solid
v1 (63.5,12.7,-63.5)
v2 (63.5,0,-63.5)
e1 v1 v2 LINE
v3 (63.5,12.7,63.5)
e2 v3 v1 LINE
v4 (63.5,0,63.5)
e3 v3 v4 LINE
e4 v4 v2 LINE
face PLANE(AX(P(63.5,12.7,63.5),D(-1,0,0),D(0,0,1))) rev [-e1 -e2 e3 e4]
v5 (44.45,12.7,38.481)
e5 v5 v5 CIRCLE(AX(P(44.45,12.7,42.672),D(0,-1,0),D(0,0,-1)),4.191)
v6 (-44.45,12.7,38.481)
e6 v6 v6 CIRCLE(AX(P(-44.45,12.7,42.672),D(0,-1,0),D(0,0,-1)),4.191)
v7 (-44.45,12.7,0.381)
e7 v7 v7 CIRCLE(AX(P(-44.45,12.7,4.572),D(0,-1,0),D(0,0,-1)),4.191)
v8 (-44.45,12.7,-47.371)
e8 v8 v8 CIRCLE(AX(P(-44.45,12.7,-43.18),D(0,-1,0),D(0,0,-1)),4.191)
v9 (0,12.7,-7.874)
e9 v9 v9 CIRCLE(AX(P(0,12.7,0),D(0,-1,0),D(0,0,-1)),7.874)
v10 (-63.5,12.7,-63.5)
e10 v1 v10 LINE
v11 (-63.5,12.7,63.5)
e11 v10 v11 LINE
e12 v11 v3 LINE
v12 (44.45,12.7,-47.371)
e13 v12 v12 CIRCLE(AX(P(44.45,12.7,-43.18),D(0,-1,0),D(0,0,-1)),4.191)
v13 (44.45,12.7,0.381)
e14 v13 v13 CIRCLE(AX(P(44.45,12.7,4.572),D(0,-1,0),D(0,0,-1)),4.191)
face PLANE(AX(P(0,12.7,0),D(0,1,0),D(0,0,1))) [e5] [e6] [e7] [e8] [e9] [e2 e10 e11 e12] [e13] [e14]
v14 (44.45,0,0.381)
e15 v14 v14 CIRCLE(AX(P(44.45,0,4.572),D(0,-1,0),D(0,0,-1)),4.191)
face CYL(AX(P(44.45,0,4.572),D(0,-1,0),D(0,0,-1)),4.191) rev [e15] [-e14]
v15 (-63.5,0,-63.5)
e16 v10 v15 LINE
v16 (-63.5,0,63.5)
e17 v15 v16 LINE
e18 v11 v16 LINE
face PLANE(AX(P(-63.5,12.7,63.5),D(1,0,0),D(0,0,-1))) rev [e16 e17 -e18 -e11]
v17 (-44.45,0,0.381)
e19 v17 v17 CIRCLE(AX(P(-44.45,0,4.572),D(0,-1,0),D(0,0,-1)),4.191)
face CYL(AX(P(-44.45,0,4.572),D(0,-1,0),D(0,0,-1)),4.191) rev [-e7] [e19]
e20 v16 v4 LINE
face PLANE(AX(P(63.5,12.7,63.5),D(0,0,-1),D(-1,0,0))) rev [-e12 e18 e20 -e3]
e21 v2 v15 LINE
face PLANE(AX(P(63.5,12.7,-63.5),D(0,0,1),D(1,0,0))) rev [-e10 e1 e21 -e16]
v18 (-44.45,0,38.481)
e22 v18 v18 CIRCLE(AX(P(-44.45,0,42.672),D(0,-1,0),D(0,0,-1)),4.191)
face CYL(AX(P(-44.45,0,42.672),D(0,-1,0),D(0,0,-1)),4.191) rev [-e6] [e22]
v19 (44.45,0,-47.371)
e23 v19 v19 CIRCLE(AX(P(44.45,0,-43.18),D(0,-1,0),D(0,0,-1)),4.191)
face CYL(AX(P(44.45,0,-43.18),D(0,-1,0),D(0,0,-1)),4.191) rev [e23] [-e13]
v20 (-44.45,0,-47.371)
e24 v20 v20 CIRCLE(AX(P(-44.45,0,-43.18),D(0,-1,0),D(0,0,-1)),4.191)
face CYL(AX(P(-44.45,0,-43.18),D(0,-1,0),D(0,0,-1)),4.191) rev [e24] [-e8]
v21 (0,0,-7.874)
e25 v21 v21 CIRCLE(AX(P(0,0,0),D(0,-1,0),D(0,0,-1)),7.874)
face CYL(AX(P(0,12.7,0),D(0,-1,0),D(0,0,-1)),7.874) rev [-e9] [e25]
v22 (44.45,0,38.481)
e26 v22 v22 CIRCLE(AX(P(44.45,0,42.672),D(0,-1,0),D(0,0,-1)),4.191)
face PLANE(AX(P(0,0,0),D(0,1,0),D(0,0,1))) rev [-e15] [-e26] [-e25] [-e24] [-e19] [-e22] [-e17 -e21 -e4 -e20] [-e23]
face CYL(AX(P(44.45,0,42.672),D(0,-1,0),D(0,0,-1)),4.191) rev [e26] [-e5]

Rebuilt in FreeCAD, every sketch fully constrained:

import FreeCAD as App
import Part
import Sketcher
from FreeCAD import Vector
Q = App.Units.Quantity

doc = App.newDocument("Part")
body = doc.addObject("PartDesign::Body", "Body")

sketch1 = body.newObject("Sketcher::SketchObject", "Sketch")
sketch1.AttachmentSupport = (doc.getObject("XZ_Plane"), [""])
sketch1.MapMode = "FlatFace"
sketch1.addGeometry(Part.LineSegment(Vector(-64, -64, 0), Vector(-64, 64, 0)), False)
sketch1.addGeometry(Part.LineSegment(Vector(-64, 64, 0), Vector(64, 64, 0)), False)
sketch1.addGeometry(Part.LineSegment(Vector(64, 64, 0), Vector(64, -64, 0)), False)
sketch1.addGeometry(Part.LineSegment(Vector(64, -64, 0), Vector(-64, -64, 0)), False)
sketch1.addConstraint(Sketcher.Constraint("Coincident", 0, 2, 1, 1))
sketch1.addConstraint(Sketcher.Constraint("Coincident", 1, 2, 2, 1))
sketch1.addConstraint(Sketcher.Constraint("Coincident", 2, 2, 3, 1))
sketch1.addConstraint(Sketcher.Constraint("Coincident", 3, 2, 0, 1))
sketch1.addConstraint(Sketcher.Constraint("Vertical", 0))
sketch1.addConstraint(Sketcher.Constraint("Horizontal", 1))
sketch1.addConstraint(Sketcher.Constraint("Vertical", 2))
sketch1.addConstraint(Sketcher.Constraint("Horizontal", 3))
sketch1.addConstraint(Sketcher.Constraint("Symmetric", 0, 2, 2, 2, -1, 1))
sketch1.addConstraint(Sketcher.Constraint("Equal", 3, 0))
sketch1.addConstraint(Sketcher.Constraint("DistanceX", 1, 1, 1, 2, Q("5 in")))
pad1 = body.newObject("PartDesign::Pad", "Pad")
pad1.Profile = sketch1
pad1.Length = Q("0.5 in")
pad1.Reversed = True

sketch2 = body.newObject("Sketcher::SketchObject", "Sketch001")
sketch2.AttachmentSupport = (doc.getObject("XZ_Plane"), [""])
sketch2.MapMode = "FlatFace"
sketch2.addGeometry(Part.Circle(Vector(44.5, -43.2, 0), Vector(0, 0, 1), 4.2), False)
sketch2.addGeometry(Part.Circle(Vector(44.5, 4.6, 0), Vector(0, 0, 1), 4.2), False)
sketch2.addGeometry(Part.Circle(Vector(44.5, 42.7, 0), Vector(0, 0, 1), 4.2), False)
sketch2.addGeometry(Part.Circle(Vector(-44.5, -43.2, 0), Vector(0, 0, 1), 4.2), False)
sketch2.addGeometry(Part.Circle(Vector(-44.5, 4.6, 0), Vector(0, 0, 1), 4.2), False)
sketch2.addGeometry(Part.Circle(Vector(-44.5, 42.7, 0), Vector(0, 0, 1), 4.2), False)
sketch2.addConstraint(Sketcher.Constraint("Equal", 0, 1))
sketch2.addConstraint(Sketcher.Constraint("Equal", 1, 2))
sketch2.addConstraint(Sketcher.Constraint("Equal", 2, 3))
sketch2.addConstraint(Sketcher.Constraint("Equal", 3, 4))
sketch2.addConstraint(Sketcher.Constraint("Equal", 4, 5))
sketch2.addConstraint(Sketcher.Constraint("Symmetric", 0, 3, 3, 3, -2))
sketch2.addConstraint(Sketcher.Constraint("Symmetric", 1, 3, 4, 3, -2))
sketch2.addConstraint(Sketcher.Constraint("Symmetric", 2, 3, 5, 3, -2))
sketch2.addConstraint(Sketcher.Constraint("Vertical", 0, 3, 1, 3))
sketch2.addConstraint(Sketcher.Constraint("Vertical", 1, 3, 2, 3))
sketch2.addConstraint(Sketcher.Constraint("Diameter", 0, Q("0.33 in")))
sketch2.addConstraint(Sketcher.Constraint("DistanceY", 0, 3, -1, 1, Q("1.7 in")))
sketch2.addConstraint(Sketcher.Constraint("DistanceY", 1, 3, 2, 3, Q("1.5 in")))
sketch2.addConstraint(Sketcher.Constraint("DistanceX", 3, 3, 0, 3, Q("3.5 in")))
sketch2.addConstraint(Sketcher.Constraint("DistanceY", -1, 1, 1, 3, Q("0.18 in")))
doc.recompute()
hole = body.newObject("PartDesign::Hole", "Hole")
hole.Profile = sketch2
hole.ThreadType = "None"
hole.Diameter = Q("0.33 in")
hole.DepthType = "ThroughAll"

sketch3 = body.newObject("Sketcher::SketchObject", "Sketch002")
sketch3.AttachmentSupport = (doc.getObject("XZ_Plane"), [""])
sketch3.MapMode = "FlatFace"
sketch3.addGeometry(Part.Circle(Vector(0, 0, 0), Vector(0, 0, 1), 8), False)
sketch3.addConstraint(Sketcher.Constraint("Coincident", 0, 3, -1, 1))
sketch3.addConstraint(Sketcher.Constraint("Diameter", 0, Q("0.62 in")))
pocket1 = body.newObject("PartDesign::Pocket", "Pocket")
pocket1.Profile = sketch3
pocket1.Type = "ThroughAll"

doc.recompute()
